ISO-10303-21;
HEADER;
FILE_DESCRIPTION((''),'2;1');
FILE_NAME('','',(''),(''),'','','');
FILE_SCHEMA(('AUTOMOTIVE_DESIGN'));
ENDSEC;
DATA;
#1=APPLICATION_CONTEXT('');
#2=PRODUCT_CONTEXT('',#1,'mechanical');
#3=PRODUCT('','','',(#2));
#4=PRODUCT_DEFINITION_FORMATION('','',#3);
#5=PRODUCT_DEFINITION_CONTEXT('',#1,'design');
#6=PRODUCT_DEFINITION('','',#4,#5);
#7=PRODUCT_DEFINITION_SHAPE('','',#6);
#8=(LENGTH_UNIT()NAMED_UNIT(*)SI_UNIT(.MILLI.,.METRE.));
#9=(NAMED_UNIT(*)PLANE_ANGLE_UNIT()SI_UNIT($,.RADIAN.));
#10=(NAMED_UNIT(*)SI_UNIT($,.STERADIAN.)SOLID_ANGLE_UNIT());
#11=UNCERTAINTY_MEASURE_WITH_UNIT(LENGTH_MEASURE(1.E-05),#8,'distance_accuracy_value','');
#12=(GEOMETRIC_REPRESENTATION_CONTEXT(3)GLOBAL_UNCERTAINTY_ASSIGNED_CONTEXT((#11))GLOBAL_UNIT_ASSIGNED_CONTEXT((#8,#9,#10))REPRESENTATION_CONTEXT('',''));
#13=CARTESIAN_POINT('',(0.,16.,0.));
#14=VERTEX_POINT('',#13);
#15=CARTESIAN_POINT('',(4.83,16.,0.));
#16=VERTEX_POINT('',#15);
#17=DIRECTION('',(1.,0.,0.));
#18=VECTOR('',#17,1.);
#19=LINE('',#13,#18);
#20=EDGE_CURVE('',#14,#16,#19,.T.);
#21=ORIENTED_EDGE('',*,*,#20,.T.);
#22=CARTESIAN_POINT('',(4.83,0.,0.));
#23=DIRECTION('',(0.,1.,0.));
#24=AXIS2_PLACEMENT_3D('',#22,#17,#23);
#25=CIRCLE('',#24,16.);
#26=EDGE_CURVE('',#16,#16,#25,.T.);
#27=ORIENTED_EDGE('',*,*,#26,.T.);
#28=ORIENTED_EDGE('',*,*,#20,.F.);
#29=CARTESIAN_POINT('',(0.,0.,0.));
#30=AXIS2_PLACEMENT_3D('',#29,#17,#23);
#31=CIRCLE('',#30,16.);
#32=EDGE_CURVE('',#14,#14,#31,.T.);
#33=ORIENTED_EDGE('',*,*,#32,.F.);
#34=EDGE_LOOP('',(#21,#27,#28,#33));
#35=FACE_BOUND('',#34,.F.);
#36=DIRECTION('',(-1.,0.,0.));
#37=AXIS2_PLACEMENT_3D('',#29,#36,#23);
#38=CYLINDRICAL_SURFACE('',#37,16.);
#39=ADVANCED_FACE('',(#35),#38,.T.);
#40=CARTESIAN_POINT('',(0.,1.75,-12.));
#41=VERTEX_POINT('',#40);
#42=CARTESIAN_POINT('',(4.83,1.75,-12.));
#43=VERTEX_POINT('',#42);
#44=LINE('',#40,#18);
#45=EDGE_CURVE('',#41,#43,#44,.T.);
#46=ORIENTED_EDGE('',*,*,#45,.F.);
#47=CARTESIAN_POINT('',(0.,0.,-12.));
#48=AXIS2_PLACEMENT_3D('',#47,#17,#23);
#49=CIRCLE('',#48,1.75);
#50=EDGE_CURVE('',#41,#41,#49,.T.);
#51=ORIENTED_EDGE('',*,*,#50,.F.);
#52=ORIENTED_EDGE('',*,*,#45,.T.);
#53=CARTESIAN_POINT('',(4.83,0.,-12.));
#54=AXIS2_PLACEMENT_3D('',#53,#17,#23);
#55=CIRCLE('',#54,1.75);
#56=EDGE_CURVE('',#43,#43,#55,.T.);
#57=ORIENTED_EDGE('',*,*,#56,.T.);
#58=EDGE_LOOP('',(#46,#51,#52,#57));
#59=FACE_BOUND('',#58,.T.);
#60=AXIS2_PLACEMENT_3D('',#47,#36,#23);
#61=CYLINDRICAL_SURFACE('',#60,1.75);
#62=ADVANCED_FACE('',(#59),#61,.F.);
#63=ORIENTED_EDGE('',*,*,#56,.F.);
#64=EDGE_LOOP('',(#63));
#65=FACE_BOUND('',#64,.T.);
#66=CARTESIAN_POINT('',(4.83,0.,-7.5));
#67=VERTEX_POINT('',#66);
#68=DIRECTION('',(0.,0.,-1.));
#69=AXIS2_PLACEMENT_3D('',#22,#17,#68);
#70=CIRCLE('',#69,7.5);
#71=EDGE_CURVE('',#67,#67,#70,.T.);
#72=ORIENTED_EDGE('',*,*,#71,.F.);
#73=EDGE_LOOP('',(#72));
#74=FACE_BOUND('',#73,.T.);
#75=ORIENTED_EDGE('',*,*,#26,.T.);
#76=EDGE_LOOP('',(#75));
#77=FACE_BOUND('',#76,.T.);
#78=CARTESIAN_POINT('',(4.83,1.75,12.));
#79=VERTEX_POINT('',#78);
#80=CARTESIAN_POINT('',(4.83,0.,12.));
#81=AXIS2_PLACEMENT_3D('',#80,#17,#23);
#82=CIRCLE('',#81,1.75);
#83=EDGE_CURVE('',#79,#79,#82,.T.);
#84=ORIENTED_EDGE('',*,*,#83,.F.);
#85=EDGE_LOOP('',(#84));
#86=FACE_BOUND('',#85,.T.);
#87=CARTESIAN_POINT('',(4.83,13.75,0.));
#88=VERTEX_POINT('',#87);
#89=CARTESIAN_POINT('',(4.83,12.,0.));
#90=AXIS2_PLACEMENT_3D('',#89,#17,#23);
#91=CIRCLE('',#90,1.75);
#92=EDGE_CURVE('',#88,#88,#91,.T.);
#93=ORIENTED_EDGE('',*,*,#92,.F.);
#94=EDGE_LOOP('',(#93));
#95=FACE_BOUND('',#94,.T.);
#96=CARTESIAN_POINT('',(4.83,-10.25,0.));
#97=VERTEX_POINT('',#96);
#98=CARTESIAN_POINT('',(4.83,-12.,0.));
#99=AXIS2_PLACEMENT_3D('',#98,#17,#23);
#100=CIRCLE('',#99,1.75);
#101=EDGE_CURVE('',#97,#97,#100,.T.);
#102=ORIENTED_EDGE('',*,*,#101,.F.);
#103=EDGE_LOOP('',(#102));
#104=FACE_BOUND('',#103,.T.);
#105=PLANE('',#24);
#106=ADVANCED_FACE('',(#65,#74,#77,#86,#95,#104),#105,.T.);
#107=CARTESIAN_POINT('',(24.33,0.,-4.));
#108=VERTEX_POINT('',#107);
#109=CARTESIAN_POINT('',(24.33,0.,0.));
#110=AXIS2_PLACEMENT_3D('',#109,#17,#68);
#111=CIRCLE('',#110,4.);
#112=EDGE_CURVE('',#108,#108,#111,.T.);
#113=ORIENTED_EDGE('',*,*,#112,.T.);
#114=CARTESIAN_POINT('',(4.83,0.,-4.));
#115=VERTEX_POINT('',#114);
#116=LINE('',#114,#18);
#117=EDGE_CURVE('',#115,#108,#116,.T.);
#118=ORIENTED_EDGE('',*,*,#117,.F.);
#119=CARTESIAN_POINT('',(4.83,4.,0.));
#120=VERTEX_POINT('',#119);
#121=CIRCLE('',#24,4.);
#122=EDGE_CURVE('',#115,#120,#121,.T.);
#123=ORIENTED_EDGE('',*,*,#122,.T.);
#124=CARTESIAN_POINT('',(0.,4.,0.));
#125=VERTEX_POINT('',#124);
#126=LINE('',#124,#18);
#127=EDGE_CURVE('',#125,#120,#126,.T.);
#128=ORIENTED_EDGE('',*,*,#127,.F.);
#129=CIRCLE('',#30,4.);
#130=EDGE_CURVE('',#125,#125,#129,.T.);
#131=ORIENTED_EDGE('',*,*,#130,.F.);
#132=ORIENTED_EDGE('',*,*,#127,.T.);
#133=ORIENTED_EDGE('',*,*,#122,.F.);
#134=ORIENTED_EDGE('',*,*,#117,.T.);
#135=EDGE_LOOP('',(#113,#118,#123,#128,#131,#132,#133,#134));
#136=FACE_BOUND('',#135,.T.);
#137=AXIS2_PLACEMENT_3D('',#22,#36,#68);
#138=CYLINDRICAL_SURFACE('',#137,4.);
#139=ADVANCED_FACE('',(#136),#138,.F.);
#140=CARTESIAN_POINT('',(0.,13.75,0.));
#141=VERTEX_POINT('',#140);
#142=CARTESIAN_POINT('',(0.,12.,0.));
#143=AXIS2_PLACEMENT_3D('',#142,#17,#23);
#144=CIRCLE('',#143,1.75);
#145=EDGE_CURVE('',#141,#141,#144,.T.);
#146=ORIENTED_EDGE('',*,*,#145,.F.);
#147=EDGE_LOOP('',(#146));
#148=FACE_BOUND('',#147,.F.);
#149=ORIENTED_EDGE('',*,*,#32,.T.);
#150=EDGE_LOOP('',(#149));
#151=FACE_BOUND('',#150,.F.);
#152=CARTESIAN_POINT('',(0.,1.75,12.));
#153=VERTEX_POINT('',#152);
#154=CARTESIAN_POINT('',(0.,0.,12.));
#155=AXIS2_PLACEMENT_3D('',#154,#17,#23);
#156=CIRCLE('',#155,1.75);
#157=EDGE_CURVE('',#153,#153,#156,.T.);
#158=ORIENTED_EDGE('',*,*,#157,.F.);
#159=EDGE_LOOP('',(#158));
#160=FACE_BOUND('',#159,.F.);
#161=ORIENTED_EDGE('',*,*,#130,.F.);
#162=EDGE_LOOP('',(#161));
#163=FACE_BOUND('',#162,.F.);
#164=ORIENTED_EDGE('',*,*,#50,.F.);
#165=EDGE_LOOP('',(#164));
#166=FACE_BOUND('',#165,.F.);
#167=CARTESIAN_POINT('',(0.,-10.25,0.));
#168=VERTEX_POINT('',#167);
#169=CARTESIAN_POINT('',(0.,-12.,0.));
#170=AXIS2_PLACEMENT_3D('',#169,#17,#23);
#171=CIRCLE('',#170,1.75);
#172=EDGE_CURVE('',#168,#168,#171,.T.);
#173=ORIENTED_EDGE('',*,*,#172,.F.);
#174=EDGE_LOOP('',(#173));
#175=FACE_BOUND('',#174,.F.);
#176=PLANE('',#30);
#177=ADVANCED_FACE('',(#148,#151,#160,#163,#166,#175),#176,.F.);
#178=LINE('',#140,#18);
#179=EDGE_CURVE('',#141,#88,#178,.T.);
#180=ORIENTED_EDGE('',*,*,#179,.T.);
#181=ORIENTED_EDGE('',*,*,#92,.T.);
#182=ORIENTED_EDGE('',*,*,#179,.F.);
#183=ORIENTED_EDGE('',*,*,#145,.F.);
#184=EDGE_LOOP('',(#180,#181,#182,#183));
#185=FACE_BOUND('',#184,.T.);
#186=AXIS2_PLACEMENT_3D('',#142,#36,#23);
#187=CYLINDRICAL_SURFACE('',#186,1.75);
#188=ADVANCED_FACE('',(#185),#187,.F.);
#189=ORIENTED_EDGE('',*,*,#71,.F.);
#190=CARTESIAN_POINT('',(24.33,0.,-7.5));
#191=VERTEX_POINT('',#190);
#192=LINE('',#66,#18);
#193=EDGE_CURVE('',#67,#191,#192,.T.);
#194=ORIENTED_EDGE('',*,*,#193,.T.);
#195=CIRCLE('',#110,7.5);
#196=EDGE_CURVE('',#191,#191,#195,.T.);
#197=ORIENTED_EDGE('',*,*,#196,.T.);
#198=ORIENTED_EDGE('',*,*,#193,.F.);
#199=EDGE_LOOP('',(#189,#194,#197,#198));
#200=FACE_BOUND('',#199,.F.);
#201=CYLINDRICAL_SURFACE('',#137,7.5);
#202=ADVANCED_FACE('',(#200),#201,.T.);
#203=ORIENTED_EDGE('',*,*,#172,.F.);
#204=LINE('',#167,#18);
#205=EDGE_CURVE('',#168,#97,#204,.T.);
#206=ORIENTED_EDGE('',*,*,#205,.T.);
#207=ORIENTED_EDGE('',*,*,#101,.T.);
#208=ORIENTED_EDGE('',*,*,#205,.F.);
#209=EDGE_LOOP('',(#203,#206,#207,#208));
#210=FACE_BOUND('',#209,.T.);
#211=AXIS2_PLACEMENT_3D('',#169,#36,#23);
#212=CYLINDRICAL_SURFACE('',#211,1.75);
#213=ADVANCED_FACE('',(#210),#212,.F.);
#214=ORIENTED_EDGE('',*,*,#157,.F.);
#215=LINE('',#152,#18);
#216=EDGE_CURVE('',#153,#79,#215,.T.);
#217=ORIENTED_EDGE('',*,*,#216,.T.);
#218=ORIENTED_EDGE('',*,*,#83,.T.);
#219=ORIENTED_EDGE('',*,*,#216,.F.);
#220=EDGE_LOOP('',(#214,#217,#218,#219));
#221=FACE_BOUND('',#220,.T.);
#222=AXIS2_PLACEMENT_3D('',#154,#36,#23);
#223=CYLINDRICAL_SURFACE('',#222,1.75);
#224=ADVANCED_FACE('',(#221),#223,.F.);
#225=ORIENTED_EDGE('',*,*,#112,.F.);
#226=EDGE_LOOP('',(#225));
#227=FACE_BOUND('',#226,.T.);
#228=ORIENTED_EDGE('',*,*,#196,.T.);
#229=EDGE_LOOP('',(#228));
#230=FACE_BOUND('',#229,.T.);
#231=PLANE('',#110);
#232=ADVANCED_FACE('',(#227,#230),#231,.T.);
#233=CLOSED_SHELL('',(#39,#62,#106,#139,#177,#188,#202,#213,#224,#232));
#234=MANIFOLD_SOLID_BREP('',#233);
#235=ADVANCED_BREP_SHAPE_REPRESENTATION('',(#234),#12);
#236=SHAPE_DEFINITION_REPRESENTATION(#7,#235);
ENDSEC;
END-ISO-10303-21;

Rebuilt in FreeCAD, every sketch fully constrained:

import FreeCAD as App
import Part
import Sketcher

V = App.Vector
Q = App.Units.Quantity

doc = App.newDocument("Part")
body = doc.addObject("PartDesign::Body", "Body")

# Sketch on YZ plane
sketch1 = doc.addObject("Sketcher::SketchObject", "Sketch")
body.addObject(sketch1)
sketch1.AttachmentSupport = (doc.YZ_Plane, [""])
sketch1.MapMode = "FlatFace"
sketch1.addGeometry([
    Part.Circle(V(0, 0, 0), V(0, 0, 1), 16),  # 0
    Part.Circle(V(0, -12, 0), V(0, 0, 1), 1.8),  # 1
    Part.Circle(V(-12, 0, 0), V(0, 0, 1), 1.8),  # 2
    Part.Circle(V(12, 0, 0), V(0, 0, 1), 1.8),  # 3
    Part.Circle(V(0, 12, 0), V(0, 0, 1), 1.8),  # 4
    Part.Circle(V(0, 0, 0), V(0, 0, 1), 4),  # 5
], False)
sketch1.addConstraint([
    Sketcher.Constraint("Coincident", 0, 3, -1, 1),
    Sketcher.Constraint("Coincident", 5, 3, -1, 1),
    Sketcher.Constraint("Equal", 1, 2),
    Sketcher.Constraint("Equal", 2, 3),
    Sketcher.Constraint("Equal", 3, 4),
    Sketcher.Constraint("Symmetric", 2, 3, 3, 3, -1, 1),
    Sketcher.Constraint("Symmetric", 1, 3, 4, 3, -1, 1),
    Sketcher.Constraint("PointOnObject", 1, 3, -2),
    Sketcher.Constraint("PointOnObject", 2, 3, -1),
    Sketcher.Constraint("Diameter", 0, Q("32 mm")),
    Sketcher.Constraint("Diameter", 5, Q("8 mm")),
    Sketcher.Constraint("Diameter", 1, Q("3.5 mm")),
    Sketcher.Constraint("DistanceY", 1, 3, -1, 1, Q("12 mm")),
    Sketcher.Constraint("DistanceX", 2, 3, -1, 1, Q("12 mm")),
])
pad1 = doc.addObject("PartDesign::Pad", "Pad")
body.addObject(pad1)
pad1.Profile = sketch1
pad1.Length = 4.83

# Sketch on YZ plane
sketch2 = doc.addObject("Sketcher::SketchObject", "Sketch001")
body.addObject(sketch2)
sketch2.AttachmentSupport = (doc.YZ_Plane, [""])
sketch2.MapMode = "FlatFace"
sketch2.AttachmentOffset = App.Placement(V(0, 0, 4.83), App.Rotation())
sketch2.addGeometry([
    Part.Circle(V(0, 0, 0), V(0, 0, 1), 7.5),
    Part.Circle(V(0, 0, 0), V(0, 0, 1), 4),
], False)
sketch2.addConstraint([
    Sketcher.Constraint("Coincident", 0, 3, -1, 1),
    Sketcher.Constraint("Coincident", 1, 3, -1, 1),
    Sketcher.Constraint("Diameter", 0, Q("15 mm")),
    Sketcher.Constraint("Diameter", 1, Q("8 mm")),
])
pad2 = doc.addObject("PartDesign::Pad", "Pad001")
body.addObject(pad2)
pad2.Profile = sketch2
pad2.Length = 19.5

doc.recompute()
